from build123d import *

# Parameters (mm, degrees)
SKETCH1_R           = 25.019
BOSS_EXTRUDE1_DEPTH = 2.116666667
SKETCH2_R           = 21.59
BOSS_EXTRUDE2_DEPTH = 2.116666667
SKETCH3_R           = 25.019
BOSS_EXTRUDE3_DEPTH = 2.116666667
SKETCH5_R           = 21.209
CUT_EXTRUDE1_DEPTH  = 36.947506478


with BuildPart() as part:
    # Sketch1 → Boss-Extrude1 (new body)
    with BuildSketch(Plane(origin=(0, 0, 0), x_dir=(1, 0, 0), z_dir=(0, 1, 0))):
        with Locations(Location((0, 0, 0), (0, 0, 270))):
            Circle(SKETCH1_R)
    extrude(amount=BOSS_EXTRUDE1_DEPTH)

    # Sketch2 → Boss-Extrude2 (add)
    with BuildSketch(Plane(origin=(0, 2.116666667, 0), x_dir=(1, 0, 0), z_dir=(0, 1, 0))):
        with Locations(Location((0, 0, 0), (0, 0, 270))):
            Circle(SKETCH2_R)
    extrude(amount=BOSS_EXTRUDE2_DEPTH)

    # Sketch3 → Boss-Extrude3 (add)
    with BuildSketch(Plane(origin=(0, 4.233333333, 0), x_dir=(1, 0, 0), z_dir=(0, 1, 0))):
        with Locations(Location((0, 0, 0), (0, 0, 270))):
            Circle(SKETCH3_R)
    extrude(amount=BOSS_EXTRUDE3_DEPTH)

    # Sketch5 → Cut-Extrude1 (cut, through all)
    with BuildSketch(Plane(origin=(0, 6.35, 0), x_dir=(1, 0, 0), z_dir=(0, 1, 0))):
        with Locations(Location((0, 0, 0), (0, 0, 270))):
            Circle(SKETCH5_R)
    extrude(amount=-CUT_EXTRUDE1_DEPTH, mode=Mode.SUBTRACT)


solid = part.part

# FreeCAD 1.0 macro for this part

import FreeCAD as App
import Part
import Sketcher
from FreeCAD import Vector
Q = App.Units.Quantity

doc = App.newDocument("Part")
body = doc.addObject("PartDesign::Body", "Body")

sketch1 = body.newObject("Sketcher::SketchObject", "Sketch")
sketch1.AttachmentSupport = (doc.getObject("XZ_Plane"), [""])
sketch1.MapMode = "FlatFace"
sketch1.addGeometry(Part.Circle(Vector(0, 0, 0), Vector(0, 0, 1), 25), False)
sketch1.addConstraint([
    Sketcher.Constraint("Coincident", 0, 3, -1, 1),
    Sketcher.Constraint("Diameter", 0, Q("1.97 in")),
])
pad1 = body.newObject("PartDesign::Pad", "Pad")
pad1.Profile = sketch1
pad1.Length = 2.116667
pad1.Reversed = True

sketch2 = body.newObject("Sketcher::SketchObject", "Sketch001")
sketch2.AttachmentSupport = (doc.getObject("XZ_Plane"), [""])
sketch2.MapMode = "FlatFace"
sketch2.AttachmentOffset = App.Placement(Vector(0, 0, -2.116667), App.Rotation())
sketch2.addGeometry(Part.Circle(Vector(0, 0, 0), Vector(0, 0, 1), 22), False)
sketch2.addConstraint([
    Sketcher.Constraint("Coincident", 0, 3, -1, 1),
    Sketcher.Constraint("Diameter", 0, Q("1.7 in")),
])
pad2 = body.newObject("PartDesign::Pad", "Pad001")
pad2.Profile = sketch2
pad2.Length = 2.116667
pad2.Reversed = True

sketch3 = body.newObject("Sketcher::SketchObject", "Sketch002")
sketch3.AttachmentSupport = (doc.getObject("XZ_Plane"), [""])
sketch3.MapMode = "FlatFace"
sketch3.AttachmentOffset = App.Placement(Vector(0, 0, -4.233333), App.Rotation())
sketch3.addGeometry(Part.Circle(Vector(0, 0, 0), Vector(0, 0, 1), 25), False)
sketch3.addConstraint([
    Sketcher.Constraint("Coincident", 0, 3, -1, 1),
    Sketcher.Constraint("Diameter", 0, Q("1.97 in")),
])
pad3 = body.newObject("PartDesign::Pad", "Pad002")
pad3.Profile = sketch3
pad3.Length = 2.116667
pad3.Reversed = True

sketch4 = body.newObject("Sketcher::SketchObject", "Sketch003")
sketch4.AttachmentSupport = (doc.getObject("XZ_Plane"), [""])
sketch4.MapMode = "FlatFace"
sketch4.AttachmentOffset = App.Placement(Vector(0, 0, -0.25 * 25.4), App.Rotation())
sketch4.addGeometry(Part.Circle(Vector(0, 0, 0), Vector(0, 0, 1), 21), False)
sketch4.addConstraint([
    Sketcher.Constraint("Coincident", 0, 3, -1, 1),
    Sketcher.Constraint("Diameter", 0, Q("1.67 in")),
])
pocket1 = body.newObject("PartDesign::Pocket", "Pocket")
pocket1.Profile = sketch4
pocket1.Type = "ThroughAll"
pocket1.Reversed = True

doc.recompute()
